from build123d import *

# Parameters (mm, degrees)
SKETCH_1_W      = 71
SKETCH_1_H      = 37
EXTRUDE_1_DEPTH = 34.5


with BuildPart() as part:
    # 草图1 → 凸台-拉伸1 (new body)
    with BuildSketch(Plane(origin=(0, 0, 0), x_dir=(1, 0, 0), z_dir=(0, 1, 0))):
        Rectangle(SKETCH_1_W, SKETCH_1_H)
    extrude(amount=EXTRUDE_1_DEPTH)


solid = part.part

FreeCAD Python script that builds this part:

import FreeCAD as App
import Part
import Sketcher
from FreeCAD import Vector
Q = App.Units.Quantity


def add_polygon(sketch, points):
    """Adds a closed chain of lines whose ends are joined by coincident constraints."""
    first, n = sketch.GeometryCount, len(points)
    for a, b in zip(points, points[1:] + points[:1]):
        sketch.addGeometry(Part.LineSegment(App.Vector(*a, 0), App.Vector(*b, 0)), False)
    for i in range(n):
        sketch.addConstraint(Sketcher.Constraint("Coincident", first + i, 2, first + (i + 1) % n, 1))

doc = App.newDocument("Part")
params = doc.addObject("Spreadsheet::Sheet", "Params")
for row, (alias, value) in enumerate([
    ("sketch1_width", "71 mm"),
    ("sketch1_height", "37 mm"),
    ("pad1_length", "34.5 mm"),
], start=1):
    params.set(f"A{row}", alias)
    params.set(f"B{row}", "=" + value)
    params.setAlias(f"B{row}", alias)

body = doc.addObject("PartDesign::Body", "Body")

sketch1 = doc.addObject("Sketcher::SketchObject", "Sketch")
body.addObject(sketch1)
sketch1.AttachmentSupport = (doc.XZ_Plane, [""])
sketch1.MapMode = "FlatFace"
add_polygon(sketch1, [(-35.5, -18.5), (-35.5, 18.5), (35.5, 18.5), (35.5, -18.5)])
sketch1.addConstraint([
    Sketcher.Constraint("Vertical", 0),
    Sketcher.Constraint("Horizontal", 1),
    Sketcher.Constraint("Vertical", 2),
    Sketcher.Constraint("Horizontal", 3),
    Sketcher.Constraint("Symmetric", 0, 2, 2, 2, -1, 1),
    Sketcher.Constraint("DistanceX", 1, 1, 1, 2, Q("71 mm")),
    Sketcher.Constraint("DistanceY", 0, 1, 0, 2, Q("37 mm")),
])
sketch1.setExpression("Constraints[9]", "Params.sketch1_width")
sketch1.setExpression("Constraints[10]", "Params.sketch1_height")
pad1 = doc.addObject("PartDesign::Pad", "Pad")
body.addObject(pad1)
pad1.Profile = sketch1
pad1.setExpression("Length", "Params.pad1_length")
pad1.Reversed = True

doc.recompute()
